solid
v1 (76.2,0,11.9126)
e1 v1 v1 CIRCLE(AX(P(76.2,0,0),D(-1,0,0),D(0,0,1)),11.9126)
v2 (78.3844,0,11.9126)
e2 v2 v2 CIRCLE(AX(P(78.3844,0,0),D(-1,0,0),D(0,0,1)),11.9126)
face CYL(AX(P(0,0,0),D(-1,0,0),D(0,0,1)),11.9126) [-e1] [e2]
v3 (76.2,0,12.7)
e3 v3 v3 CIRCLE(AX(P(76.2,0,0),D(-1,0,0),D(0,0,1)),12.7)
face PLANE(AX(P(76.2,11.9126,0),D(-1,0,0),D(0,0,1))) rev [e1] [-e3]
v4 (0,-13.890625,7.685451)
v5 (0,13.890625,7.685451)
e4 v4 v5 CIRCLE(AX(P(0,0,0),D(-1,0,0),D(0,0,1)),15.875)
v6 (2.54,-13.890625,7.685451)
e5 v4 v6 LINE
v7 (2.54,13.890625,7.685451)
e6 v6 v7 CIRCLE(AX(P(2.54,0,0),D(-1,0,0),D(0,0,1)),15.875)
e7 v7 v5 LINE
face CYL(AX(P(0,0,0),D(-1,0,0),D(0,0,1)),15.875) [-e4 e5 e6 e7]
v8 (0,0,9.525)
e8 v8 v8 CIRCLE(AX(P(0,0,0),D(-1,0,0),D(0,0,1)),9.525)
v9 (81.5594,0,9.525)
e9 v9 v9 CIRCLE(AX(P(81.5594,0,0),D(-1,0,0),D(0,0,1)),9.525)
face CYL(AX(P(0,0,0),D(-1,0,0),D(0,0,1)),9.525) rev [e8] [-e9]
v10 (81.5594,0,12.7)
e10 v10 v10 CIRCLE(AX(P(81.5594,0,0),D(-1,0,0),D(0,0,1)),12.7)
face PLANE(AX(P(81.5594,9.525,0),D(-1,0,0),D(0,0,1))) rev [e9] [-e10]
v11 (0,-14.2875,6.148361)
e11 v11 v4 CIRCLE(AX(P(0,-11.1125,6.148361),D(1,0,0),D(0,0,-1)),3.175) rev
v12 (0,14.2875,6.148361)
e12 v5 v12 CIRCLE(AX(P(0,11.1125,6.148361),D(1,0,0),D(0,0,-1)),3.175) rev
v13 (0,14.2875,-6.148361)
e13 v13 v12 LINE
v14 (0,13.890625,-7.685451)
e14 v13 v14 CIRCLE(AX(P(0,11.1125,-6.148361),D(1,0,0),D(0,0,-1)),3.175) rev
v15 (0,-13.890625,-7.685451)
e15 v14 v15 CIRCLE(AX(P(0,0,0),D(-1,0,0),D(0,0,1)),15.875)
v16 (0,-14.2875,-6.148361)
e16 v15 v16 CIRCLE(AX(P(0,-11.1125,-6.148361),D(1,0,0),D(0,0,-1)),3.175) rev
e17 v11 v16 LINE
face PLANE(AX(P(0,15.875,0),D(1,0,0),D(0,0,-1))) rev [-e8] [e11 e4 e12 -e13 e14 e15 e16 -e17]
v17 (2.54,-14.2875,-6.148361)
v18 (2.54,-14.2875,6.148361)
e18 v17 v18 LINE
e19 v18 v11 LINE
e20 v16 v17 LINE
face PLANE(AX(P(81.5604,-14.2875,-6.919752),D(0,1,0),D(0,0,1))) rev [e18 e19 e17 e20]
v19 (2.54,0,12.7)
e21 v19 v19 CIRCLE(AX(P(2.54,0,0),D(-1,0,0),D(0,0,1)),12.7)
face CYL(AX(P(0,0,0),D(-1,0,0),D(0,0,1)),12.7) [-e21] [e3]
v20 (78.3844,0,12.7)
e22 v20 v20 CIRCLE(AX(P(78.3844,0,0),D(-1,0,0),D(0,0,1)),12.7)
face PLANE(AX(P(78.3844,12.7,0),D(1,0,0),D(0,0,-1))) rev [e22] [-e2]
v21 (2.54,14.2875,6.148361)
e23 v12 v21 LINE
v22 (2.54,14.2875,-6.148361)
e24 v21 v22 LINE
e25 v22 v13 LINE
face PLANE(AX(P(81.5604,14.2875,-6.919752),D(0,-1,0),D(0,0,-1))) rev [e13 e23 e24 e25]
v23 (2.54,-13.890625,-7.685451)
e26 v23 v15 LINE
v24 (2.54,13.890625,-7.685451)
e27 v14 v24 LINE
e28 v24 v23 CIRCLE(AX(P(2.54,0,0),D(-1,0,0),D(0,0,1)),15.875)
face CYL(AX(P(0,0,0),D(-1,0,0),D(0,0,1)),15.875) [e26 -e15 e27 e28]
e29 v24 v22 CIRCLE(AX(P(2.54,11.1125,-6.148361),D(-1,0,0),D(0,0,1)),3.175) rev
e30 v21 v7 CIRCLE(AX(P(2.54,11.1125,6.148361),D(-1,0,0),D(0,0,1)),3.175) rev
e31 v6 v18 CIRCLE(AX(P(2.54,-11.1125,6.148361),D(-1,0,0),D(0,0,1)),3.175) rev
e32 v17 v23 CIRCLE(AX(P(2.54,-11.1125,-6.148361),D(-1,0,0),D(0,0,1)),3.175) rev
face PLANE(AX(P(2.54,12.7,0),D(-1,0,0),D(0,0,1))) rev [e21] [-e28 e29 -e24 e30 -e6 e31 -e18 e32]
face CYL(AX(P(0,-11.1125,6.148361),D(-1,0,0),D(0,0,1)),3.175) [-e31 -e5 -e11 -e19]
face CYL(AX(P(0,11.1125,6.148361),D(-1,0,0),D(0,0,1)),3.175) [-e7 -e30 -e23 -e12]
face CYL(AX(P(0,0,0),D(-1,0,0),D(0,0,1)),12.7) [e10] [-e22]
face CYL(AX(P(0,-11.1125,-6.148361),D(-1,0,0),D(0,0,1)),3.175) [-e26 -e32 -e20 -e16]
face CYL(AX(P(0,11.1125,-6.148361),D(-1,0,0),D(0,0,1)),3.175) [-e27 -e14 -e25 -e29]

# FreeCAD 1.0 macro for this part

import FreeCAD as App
import Part
import Sketcher

V = App.Vector
Q = App.Units.Quantity


def edges_at(feature, points):
    """Names of the edges that pass closest to the given points."""
    edges = feature.Shape.Edges
    near = lambda p: min(range(len(edges)), key=lambda i: edges[i].distToShape(Part.Vertex(*p))[0])
    return sorted({f"Edge{near(p) + 1}" for p in points})

doc = App.newDocument("Part")
body = doc.addObject("PartDesign::Body", "Body")

# Sketch on XY plane
sketch1 = body.newObject("Sketcher::SketchObject", "Sketch")
sketch1.AttachmentSupport = (doc.getObject("XY_Plane"), [""])
sketch1.MapMode = "FlatFace"
sketch1.addGeometry([
    Part.LineSegment(V(0, 9.525, 0), V(81.5594, 9.525, 0)),  # 0
    Part.LineSegment(V(81.5594, 9.525, 0), V(81.5594, 12.7, 0)),  # 1
    Part.LineSegment(V(81.5594, 12.7, 0), V(78.3844, 12.7, 0)),  # 2
    Part.LineSegment(V(78.3844, 12.7, 0), V(78.3844, 11.9126, 0)),  # 3
    Part.LineSegment(V(78.3844, 11.9126, 0), V(76.2, 11.9126, 0)),  # 4
    Part.LineSegment(V(76.2, 11.9126, 0), V(76.2, 12.7, 0)),  # 5
    Part.LineSegment(V(76.2, 12.7, 0), V(2.54, 12.7, 0)),  # 6
    Part.LineSegment(V(2.54, 12.7, 0), V(2.54, 15.875, 0)),  # 7
    Part.LineSegment(V(2.54, 15.875, 0), V(0, 15.875, 0)),  # 8
    Part.LineSegment(V(0, 15.875, 0), V(0, 9.525, 0)),  # 9
], False)
sketch1.addConstraint([
    Sketcher.Constraint("Coincident", 0, 2, 1, 1),
    Sketcher.Constraint("Coincident", 1, 2, 2, 1),
    Sketcher.Constraint("Coincident", 2, 2, 3, 1),
    Sketcher.Constraint("Coincident", 3, 2, 4, 1),
    Sketcher.Constraint("Coincident", 4, 2, 5, 1),
    Sketcher.Constraint("Coincident", 5, 2, 6, 1),
    Sketcher.Constraint("Coincident", 6, 2, 7, 1),
    Sketcher.Constraint("Coincident", 7, 2, 8, 1),
    Sketcher.Constraint("Coincident", 8, 2, 9, 1),
    Sketcher.Constraint("Coincident", 9, 2, 0, 1),
    Sketcher.Constraint("Horizontal", 0),
    Sketcher.Constraint("Vertical", 1),
    Sketcher.Constraint("Horizontal", 2),
    Sketcher.Constraint("Vertical", 3),
    Sketcher.Constraint("Horizontal", 4),
    Sketcher.Constraint("Vertical", 5),
    Sketcher.Constraint("Horizontal", 6),
    Sketcher.Constraint("Vertical", 7),
    Sketcher.Constraint("Horizontal", 8),
    Sketcher.Constraint("Vertical", 9),
    Sketcher.Constraint("PointOnObject", 8, 2, -2),
    Sketcher.Constraint("Horizontal", 2, 2, 5, 2),
    Sketcher.Constraint("Equal", 2, 1),
    Sketcher.Constraint("Equal", 1, 7),
    Sketcher.Constraint("DistanceX", 6, 2, 6, 1, Q("2.9 in")),
    Sketcher.Constraint("DistanceX", 8, 2, 8, 1, Q("0.1 in")),
    Sketcher.Constraint("DistanceY", 9, 2, 9, 1, Q("0.25 in")),
    Sketcher.Constraint("DistanceY", -1, 1, 1, 2, Q("0.5 in")),
    Sketcher.Constraint("DistanceX", 0, 1, 0, 2, Q("3.211 in")),
    Sketcher.Constraint("DistanceY", 3, 2, 3, 1, Q("0.031 in")),
])
revolution = body.newObject("PartDesign::Revolution", "Revolution")
revolution.Profile = sketch1
revolution.ReferenceAxis = (sketch1, ["H_Axis"])
revolution.Angle = 360

# Sketch on YZ plane
sketch2 = body.newObject("Sketcher::SketchObject", "Sketch001")
sketch2.AttachmentSupport = (doc.getObject("YZ_Plane"), [""])
sketch2.MapMode = "FlatFace"
sketch2.addGeometry([
    Part.LineSegment(V(15.875, -6.919752, 0), V(14.2875, -6.919752, 0)),
    Part.LineSegment(V(14.2875, -6.919752, 0), V(14.2875, 6.919752, 0)),
    Part.LineSegment(V(14.2875, 6.919752, 0), V(15.875, 6.919752, 0)),
    Part.LineSegment(V(15.875, 6.919752, 0), V(15.875, -6.919752, 0)),
], False)
sketch2.addConstraint([
    Sketcher.Constraint("Coincident", 0, 2, 1, 1),
    Sketcher.Constraint("Coincident", 1, 2, 2, 1),
    Sketcher.Constraint("Coincident", 2, 2, 3, 1),
    Sketcher.Constraint("Coincident", 3, 2, 0, 1),
    Sketcher.Constraint("Horizontal", 0),
    Sketcher.Constraint("Vertical", 1),
    Sketcher.Constraint("Horizontal", 2),
    Sketcher.Constraint("Vertical", 3),
    Sketcher.Constraint("DistanceX", 0, 2, 0, 1, Q("0.0625 in")),
    Sketcher.Constraint("DistanceX", -1, 1, 0, 2, Q("0.5625 in")),
    Sketcher.Constraint("DistanceY", 1, 1, 1, 2, Q("13.839504 mm")),
    Sketcher.Constraint("DistanceY", 0, 2, -1, 1, Q("6.919752 mm")),
])
pocket1 = body.newObject("PartDesign::Pocket", "Pocket")
pocket1.Profile = sketch2
pocket1.Type = "UpToFirst"
pocket1.Reversed = True

# Sketch on YZ plane
sketch3 = body.newObject("Sketcher::SketchObject", "Sketch002")
sketch3.AttachmentSupport = (doc.getObject("YZ_Plane"), [""])
sketch3.MapMode = "FlatFace"
sketch3.addGeometry([
    Part.LineSegment(V(-14.2875, -6.919752, 0), V(-15.875, -6.919752, 0)),
    Part.LineSegment(V(-15.875, -6.919752, 0), V(-15.875, 6.919752, 0)),
    Part.LineSegment(V(-15.875, 6.919752, 0), V(-14.2875, 6.919752, 0)),
    Part.LineSegment(V(-14.2875, 6.919752, 0), V(-14.2875, -6.919752, 0)),
], False)
sketch3.addConstraint([
    Sketcher.Constraint("Coincident", 0, 2, 1, 1),
    Sketcher.Constraint("Coincident", 1, 2, 2, 1),
    Sketcher.Constraint("Coincident", 2, 2, 3, 1),
    Sketcher.Constraint("Coincident", 3, 2, 0, 1),
    Sketcher.Constraint("Horizontal", 0),
    Sketcher.Constraint("Vertical", 1),
    Sketcher.Constraint("Horizontal", 2),
    Sketcher.Constraint("Vertical", 3),
    Sketcher.Constraint("DistanceX", 0, 2, 0, 1, Q("0.0625 in")),
    Sketcher.Constraint("DistanceX", 0, 2, -1, 1, Q("0.625 in")),
    Sketcher.Constraint("DistanceY", 1, 1, 1, 2, Q("13.839504 mm")),
    Sketcher.Constraint("DistanceY", 0, 2, -1, 1, Q("6.919752 mm")),
])
pocket2 = body.newObject("PartDesign::Pocket", "Pocket001")
pocket2.Profile = sketch3
pocket2.Type = "UpToFirst"
pocket2.Reversed = True
doc.recompute()

fillet = body.newObject("PartDesign::Fillet", "Fillet")
fillet.Base = (pocket2, edges_at(pocket2, [
    (1.27, 14.287, -6.92),
    (1.27, 14.287, 6.92),
    (1.27, -14.287, -6.92),
    (1.27, -14.287, 6.92),
]))
fillet.Radius = Q("0.125 in")

doc.recompute()
